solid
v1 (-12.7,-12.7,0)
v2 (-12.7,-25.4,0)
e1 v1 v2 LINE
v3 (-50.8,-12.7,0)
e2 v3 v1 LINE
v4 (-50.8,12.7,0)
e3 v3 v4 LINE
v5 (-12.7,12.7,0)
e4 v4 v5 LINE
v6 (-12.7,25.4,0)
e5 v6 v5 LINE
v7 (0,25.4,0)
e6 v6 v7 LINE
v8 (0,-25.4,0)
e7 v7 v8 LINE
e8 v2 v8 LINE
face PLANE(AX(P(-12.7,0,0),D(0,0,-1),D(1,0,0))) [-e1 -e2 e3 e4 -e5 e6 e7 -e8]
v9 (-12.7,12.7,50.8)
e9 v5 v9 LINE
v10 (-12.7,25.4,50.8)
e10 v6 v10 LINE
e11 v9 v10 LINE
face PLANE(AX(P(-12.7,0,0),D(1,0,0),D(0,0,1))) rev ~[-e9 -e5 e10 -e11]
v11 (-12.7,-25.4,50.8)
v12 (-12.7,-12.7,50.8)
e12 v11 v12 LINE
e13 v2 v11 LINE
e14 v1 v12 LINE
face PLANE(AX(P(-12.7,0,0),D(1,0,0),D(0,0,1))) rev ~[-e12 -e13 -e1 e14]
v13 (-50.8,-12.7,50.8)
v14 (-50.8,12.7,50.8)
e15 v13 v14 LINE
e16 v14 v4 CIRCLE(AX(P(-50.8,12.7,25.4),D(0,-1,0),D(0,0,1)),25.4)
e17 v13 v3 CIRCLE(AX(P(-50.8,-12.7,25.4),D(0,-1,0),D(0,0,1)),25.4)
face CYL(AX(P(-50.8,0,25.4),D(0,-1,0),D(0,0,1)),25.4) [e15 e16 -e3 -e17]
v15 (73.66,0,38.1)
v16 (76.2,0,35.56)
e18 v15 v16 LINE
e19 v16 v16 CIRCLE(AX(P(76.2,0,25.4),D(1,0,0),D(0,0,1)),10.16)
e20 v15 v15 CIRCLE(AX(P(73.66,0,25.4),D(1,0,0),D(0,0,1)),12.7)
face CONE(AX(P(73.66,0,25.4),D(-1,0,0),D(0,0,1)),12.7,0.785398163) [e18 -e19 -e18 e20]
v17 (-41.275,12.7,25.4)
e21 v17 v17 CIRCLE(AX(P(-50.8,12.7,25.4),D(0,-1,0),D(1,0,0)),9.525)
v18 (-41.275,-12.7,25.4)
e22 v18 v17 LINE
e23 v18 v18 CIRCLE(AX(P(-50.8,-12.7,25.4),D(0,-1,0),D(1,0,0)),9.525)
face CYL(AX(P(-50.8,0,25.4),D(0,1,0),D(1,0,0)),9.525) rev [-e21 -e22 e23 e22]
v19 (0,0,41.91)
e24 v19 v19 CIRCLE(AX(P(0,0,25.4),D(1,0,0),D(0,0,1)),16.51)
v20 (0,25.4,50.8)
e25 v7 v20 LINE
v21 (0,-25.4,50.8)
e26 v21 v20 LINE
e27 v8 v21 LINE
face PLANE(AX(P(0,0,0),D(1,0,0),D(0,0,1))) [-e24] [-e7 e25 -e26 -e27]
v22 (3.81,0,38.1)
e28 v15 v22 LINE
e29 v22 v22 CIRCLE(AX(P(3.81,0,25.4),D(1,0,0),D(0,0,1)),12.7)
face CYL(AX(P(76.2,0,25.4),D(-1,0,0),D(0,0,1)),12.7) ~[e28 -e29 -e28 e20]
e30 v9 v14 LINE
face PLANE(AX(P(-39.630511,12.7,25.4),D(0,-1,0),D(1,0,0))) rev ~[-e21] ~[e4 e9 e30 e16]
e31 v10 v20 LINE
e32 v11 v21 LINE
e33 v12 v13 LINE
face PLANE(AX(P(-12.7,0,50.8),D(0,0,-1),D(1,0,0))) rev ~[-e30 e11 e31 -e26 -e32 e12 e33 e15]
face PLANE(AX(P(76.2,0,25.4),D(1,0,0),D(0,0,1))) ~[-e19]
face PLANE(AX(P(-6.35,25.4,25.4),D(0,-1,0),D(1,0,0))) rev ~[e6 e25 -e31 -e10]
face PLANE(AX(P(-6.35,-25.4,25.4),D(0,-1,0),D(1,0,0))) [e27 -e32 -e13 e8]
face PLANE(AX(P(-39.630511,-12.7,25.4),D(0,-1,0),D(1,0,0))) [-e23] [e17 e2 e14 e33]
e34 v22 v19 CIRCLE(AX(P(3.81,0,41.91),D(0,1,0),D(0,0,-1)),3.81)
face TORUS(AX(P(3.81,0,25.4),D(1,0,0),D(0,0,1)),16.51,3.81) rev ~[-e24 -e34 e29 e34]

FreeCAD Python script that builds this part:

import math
import FreeCAD as App
import Part
import Sketcher
from FreeCAD import Vector
Q = App.Units.Quantity


def edges_at(feature, points):
    """Names of the edges that pass closest to the given points."""
    edges = feature.Shape.Edges
    near = lambda p: min(range(len(edges)), key=lambda i: edges[i].distToShape(Part.Vertex(*p))[0])
    return sorted({f"Edge{near(p) + 1}" for p in points})

doc = App.newDocument("Part")
body = doc.addObject("PartDesign::Body", "Body")

# Sketch on XZ plane
sketch1 = body.newObject("Sketcher::SketchObject", "Sketch")
sketch1.AttachmentSupport = (doc.getObject("XZ_Plane"), [""])
sketch1.MapMode = "FlatFace"
sketch1.addGeometry(Part.LineSegment(Vector(-50.8, 0, 0), Vector(-12.7, 0, 0)), False)
sketch1.addGeometry(Part.LineSegment(Vector(-12.7, 0, 0), Vector(-12.7, 50.8, 0)), False)
sketch1.addGeometry(Part.LineSegment(Vector(-12.7, 50.8, 0), Vector(-50.8, 50.8, 0)), False)
sketch1.addGeometry(Part.ArcOfCircle(Part.Circle(Vector(-50.8, 25.4, 0), Vector(0, 0, 1), 25.4), math.radians(90), math.radians(270)), False)
sketch1.addGeometry(Part.Circle(Vector(-50.8, 25.4, 0), Vector(0, 0, 1), 9.525), False)
sketch1.addConstraint(Sketcher.Constraint("Coincident", 0, 2, 1, 1))
sketch1.addConstraint(Sketcher.Constraint("Coincident", 1, 2, 2, 1))
sketch1.addConstraint(Sketcher.Constraint("Tangent", 2, 2, 3, 1))
sketch1.addConstraint(Sketcher.Constraint("Tangent", 3, 2, 0, 1))
sketch1.addConstraint(Sketcher.Constraint("Horizontal", 0))
sketch1.addConstraint(Sketcher.Constraint("Vertical", 1))
sketch1.addConstraint(Sketcher.Constraint("Horizontal", 2))
sketch1.addConstraint(Sketcher.Constraint("Coincident", 4, 3, 3, 3))
sketch1.addConstraint(Sketcher.Constraint("PointOnObject", 0, 2, -1))
sketch1.addConstraint(Sketcher.Constraint("Radius", 3, Q("1 in")))
sketch1.addConstraint(Sketcher.Constraint("Diameter", 4, Q("0.75 in")))
sketch1.addConstraint(Sketcher.Constraint("DistanceX", 0, 1, 0, 2, Q("1.5 in")))
sketch1.addConstraint(Sketcher.Constraint("DistanceX", 3, 3, -1, 1, Q("2 in")))
pad1 = body.newObject("PartDesign::Pad", "Pad")
pad1.Profile = sketch1
pad1.Length = Q("1 in")
pad1.Midplane = True

# Sketch on XZ plane
sketch2 = body.newObject("Sketcher::SketchObject", "Sketch001")
sketch2.AttachmentSupport = (doc.getObject("XZ_Plane"), [""])
sketch2.MapMode = "FlatFace"
sketch2.addGeometry(Part.LineSegment(Vector(-12.7, 50.8, 0), Vector(-12.7, 0, 0)), False)
sketch2.addGeometry(Part.LineSegment(Vector(-12.7, 0, 0), Vector(0, 0, 0)), False)
sketch2.addGeometry(Part.LineSegment(Vector(0, 0, 0), Vector(0, 50.8, 0)), False)
sketch2.addGeometry(Part.LineSegment(Vector(0, 50.8, 0), Vector(-12.7, 50.8, 0)), False)
sketch2.addConstraint(Sketcher.Constraint("Coincident", 0, 2, 1, 1))
sketch2.addConstraint(Sketcher.Constraint("Coincident", 1, 2, 2, 1))
sketch2.addConstraint(Sketcher.Constraint("Coincident", 2, 2, 3, 1))
sketch2.addConstraint(Sketcher.Constraint("Coincident", 3, 2, 0, 1))
sketch2.addConstraint(Sketcher.Constraint("Vertical", 0))
sketch2.addConstraint(Sketcher.Constraint("Horizontal", 1))
sketch2.addConstraint(Sketcher.Constraint("Vertical", 2))
sketch2.addConstraint(Sketcher.Constraint("Horizontal", 3))
sketch2.addConstraint(Sketcher.Constraint("Coincident", 1, 2, -1, 1))
sketch2.addConstraint(Sketcher.Constraint("DistanceY", 0, 2, 0, 1, Q("2 in")))
sketch2.addConstraint(Sketcher.Constraint("DistanceX", 1, 1, 1, 2, Q("0.5 in")))
pad2 = body.newObject("PartDesign::Pad", "Pad001")
pad2.Profile = sketch2
pad2.Length = Q("2 in")
pad2.Midplane = True

# Sketch on XZ plane
sketch3 = body.newObject("Sketcher::SketchObject", "Sketch002")
sketch3.AttachmentSupport = (doc.getObject("XZ_Plane"), [""])
sketch3.MapMode = "FlatFace"
sketch3.addGeometry(Part.LineSegment(Vector(0, 41.91, 0), Vector(0, 25.4, 0)), False)
sketch3.addGeometry(Part.LineSegment(Vector(0, 25.4, 0), Vector(76.2, 25.4, 0)), False)
sketch3.addGeometry(Part.LineSegment(Vector(76.2, 25.4, 0), Vector(76.2, 38.1, 0)), False)
sketch3.addGeometry(Part.LineSegment(Vector(76.2, 38.1, 0), Vector(3.81, 38.1, 0)), False)
sketch3.addGeometry(Part.ArcOfCircle(Part.Circle(Vector(3.81, 41.91, 0), Vector(0, 0, 1), 3.81), math.radians(180), math.radians(270)), False)
sketch3.addGeometry(Part.LineSegment(Vector(0, 25.4, 0), Vector(76.2, 25.4, 0)), True)  # axis
sketch3.addConstraint(Sketcher.Constraint("Coincident", 0, 2, 1, 1))
sketch3.addConstraint(Sketcher.Constraint("Coincident", 1, 2, 2, 1))
sketch3.addConstraint(Sketcher.Constraint("Coincident", 2, 2, 3, 1))
sketch3.addConstraint(Sketcher.Constraint("Tangent", 3, 2, 4, 2))
sketch3.addConstraint(Sketcher.Constraint("Tangent", 4, 1, 0, 1))
sketch3.addConstraint(Sketcher.Constraint("Vertical", 0))
sketch3.addConstraint(Sketcher.Constraint("Horizontal", 1))
sketch3.addConstraint(Sketcher.Constraint("Vertical", 2))
sketch3.addConstraint(Sketcher.Constraint("Horizontal", 3))
sketch3.addConstraint(Sketcher.Constraint("Horizontal", 5))
sketch3.addConstraint(Sketcher.Constraint("Coincident", 5, 1, 0, 2))
sketch3.addConstraint(Sketcher.Constraint("PointOnObject", 0, 2, -2))
sketch3.addConstraint(Sketcher.Constraint("Vertical", 2, 2, 5, 2))
sketch3.addConstraint(Sketcher.Constraint("DistanceX", 1, 1, 1, 2, Q("3 in")))
sketch3.addConstraint(Sketcher.Constraint("Radius", 4, Q("0.15 in")))
sketch3.addConstraint(Sketcher.Constraint("DistanceY", 2, 1, 2, 2, Q("0.5 in")))
sketch3.addConstraint(Sketcher.Constraint("DistanceY", -1, 1, 0, 2, Q("1 in")))
revolution = body.newObject("PartDesign::Revolution", "Revolution")
revolution.Profile = sketch3
revolution.ReferenceAxis = (sketch3, ["Axis0"])
revolution.Angle = 360
doc.recompute()

chamfer = body.newObject("PartDesign::Chamfer", "Chamfer")
chamfer.Base = (revolution, edges_at(revolution, [(76.2, 0, 12.7)]))
chamfer.ChamferType = "Two distances"
chamfer.Size = Q("0.1 in")
chamfer.Size2 = Q("0.1 in")

doc.recompute()
